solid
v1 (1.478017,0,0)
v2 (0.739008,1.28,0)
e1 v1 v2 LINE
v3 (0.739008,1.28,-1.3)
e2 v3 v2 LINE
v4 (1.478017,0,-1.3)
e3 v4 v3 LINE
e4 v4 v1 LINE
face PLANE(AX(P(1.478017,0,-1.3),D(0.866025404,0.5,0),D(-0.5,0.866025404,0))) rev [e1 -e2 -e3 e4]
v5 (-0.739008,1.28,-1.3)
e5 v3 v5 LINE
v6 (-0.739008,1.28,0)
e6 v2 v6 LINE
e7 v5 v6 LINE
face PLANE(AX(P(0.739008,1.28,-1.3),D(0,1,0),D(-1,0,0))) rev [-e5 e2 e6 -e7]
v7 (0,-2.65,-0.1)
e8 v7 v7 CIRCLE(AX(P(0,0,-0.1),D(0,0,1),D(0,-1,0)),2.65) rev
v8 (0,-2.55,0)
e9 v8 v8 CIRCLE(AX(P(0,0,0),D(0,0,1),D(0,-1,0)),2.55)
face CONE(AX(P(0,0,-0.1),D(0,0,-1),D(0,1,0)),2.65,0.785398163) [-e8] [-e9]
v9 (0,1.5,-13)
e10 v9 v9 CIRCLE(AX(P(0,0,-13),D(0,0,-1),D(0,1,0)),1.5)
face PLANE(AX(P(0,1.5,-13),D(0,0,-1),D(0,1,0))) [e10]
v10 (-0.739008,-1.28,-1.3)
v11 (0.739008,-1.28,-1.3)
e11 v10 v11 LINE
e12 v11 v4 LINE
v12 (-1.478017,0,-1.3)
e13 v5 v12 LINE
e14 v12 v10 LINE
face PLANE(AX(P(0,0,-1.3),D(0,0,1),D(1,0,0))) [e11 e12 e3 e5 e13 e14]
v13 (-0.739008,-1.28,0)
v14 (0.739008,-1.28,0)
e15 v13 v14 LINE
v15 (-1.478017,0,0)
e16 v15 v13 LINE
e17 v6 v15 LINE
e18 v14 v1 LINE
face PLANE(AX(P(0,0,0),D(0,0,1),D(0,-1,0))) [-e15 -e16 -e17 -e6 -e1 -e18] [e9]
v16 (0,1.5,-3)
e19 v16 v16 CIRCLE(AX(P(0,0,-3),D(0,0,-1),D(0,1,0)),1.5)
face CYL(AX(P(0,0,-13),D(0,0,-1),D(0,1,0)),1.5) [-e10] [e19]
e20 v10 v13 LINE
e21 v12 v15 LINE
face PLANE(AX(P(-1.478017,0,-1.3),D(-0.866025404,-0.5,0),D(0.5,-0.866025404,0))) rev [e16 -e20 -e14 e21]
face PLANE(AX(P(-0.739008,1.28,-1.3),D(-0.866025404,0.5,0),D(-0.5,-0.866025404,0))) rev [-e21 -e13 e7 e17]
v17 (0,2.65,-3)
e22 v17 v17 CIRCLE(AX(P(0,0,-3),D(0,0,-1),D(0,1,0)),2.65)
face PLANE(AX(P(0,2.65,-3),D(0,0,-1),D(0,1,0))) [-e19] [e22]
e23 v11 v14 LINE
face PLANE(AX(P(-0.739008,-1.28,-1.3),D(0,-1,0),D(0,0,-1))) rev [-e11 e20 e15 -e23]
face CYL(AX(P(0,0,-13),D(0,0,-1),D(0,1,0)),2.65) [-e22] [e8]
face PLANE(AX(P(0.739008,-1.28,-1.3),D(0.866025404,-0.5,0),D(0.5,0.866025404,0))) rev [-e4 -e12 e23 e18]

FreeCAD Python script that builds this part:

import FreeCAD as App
import Part
import Sketcher
from FreeCAD import Vector
Q = App.Units.Quantity


def edges_at(feature, points):
    """Names of the edges that pass closest to the given points."""
    edges = feature.Shape.Edges
    near = lambda p: min(range(len(edges)), key=lambda i: edges[i].distToShape(Part.Vertex(*p))[0])
    return sorted({f"Edge{near(p) + 1}" for p in points})


def add_polygon(sketch, points):
    """Adds a closed chain of lines whose ends are joined by coincident constraints."""
    first, n = sketch.GeometryCount, len(points)
    for a, b in zip(points, points[1:] + points[:1]):
        sketch.addGeometry(Part.LineSegment(App.Vector(*a, 0), App.Vector(*b, 0)), False)
    for i in range(n):
        sketch.addConstraint(Sketcher.Constraint("Coincident", first + i, 2, first + (i + 1) % n, 1))

doc = App.newDocument("Part")
body = doc.addObject("PartDesign::Body", "Body")

sketch1 = doc.addObject("Sketcher::SketchObject", "Sketch")
body.addObject(sketch1)
sketch1.AttachmentSupport = (doc.YZ_Plane, [""])
sketch1.MapMode = "FlatFace"
add_polygon(sketch1, [(2.6, 0), (0, 0), (0, -13), (1.5, -13), (1.5, -3), (2.6, -3)])
sketch1.addConstraint([
    Sketcher.Constraint("Horizontal", 0),
    Sketcher.Constraint("Vertical", 1),
    Sketcher.Constraint("Horizontal", 2),
    Sketcher.Constraint("Vertical", 3),
    Sketcher.Constraint("Horizontal", 4),
    Sketcher.Constraint("Vertical", 5),
    Sketcher.Constraint("Coincident", 0, 2, -1, 1),
    Sketcher.Constraint("DistanceY", 1, 2, 1, 1, 13.0),
    Sketcher.Constraint("DistanceY", 3, 1, 3, 2, 10.0),
    Sketcher.Constraint("DistanceX", 2, 1, 2, 2, 1.5),
    Sketcher.Constraint("DistanceX", 0, 2, 0, 1, 2.65),
])
revolution = doc.addObject("PartDesign::Revolution", "Revolution")
body.addObject(revolution)
revolution.Profile = sketch1
revolution.ReferenceAxis = (sketch1, ["V_Axis"])
revolution.Angle = 360

sketch2 = doc.addObject("Sketcher::SketchObject", "Sketch001")
body.addObject(sketch2)
sketch2.AttachmentSupport = (doc.XY_Plane, [""])
sketch2.MapMode = "FlatFace"
add_polygon(sketch2, [(0.7, 1.3), (-0.7, 1.3), (-1.5, 0), (-0.7, -1.3), (0.7, -1.3), (1.5, 0)])
sketch2.addConstraint([
    Sketcher.Constraint("Horizontal", 0),
    Sketcher.Constraint("Horizontal", 3),
    Sketcher.Constraint("Symmetric", 0, 2, 3, 2, -1, 1),
    Sketcher.Constraint("Symmetric", 1, 2, 4, 2, -1, 1),
    Sketcher.Constraint("PointOnObject", 1, 2, -1),
    Sketcher.Constraint("Parallel", 2, 5),
    Sketcher.Constraint("Vertical", 0, 2, 2, 2),
    Sketcher.Constraint("Angle", 1, Q("-120 deg")),
    Sketcher.Constraint("DistanceY", -1, 1, 0, 2, 1.28),
    Sketcher.Constraint("DistanceX", 0, 2, 0, 1, 1.478017),
])
pocket1 = doc.addObject("PartDesign::Pocket", "Pocket")
body.addObject(pocket1)
pocket1.Profile = sketch2
pocket1.Length = 1.3
doc.recompute()

chamfer = doc.addObject("PartDesign::Chamfer", "Chamfer")
body.addObject(chamfer)
chamfer.Base = (pocket1, edges_at(pocket1, [(0, -2.65, 0)]))
chamfer.Size = 0.1

doc.recompute()
